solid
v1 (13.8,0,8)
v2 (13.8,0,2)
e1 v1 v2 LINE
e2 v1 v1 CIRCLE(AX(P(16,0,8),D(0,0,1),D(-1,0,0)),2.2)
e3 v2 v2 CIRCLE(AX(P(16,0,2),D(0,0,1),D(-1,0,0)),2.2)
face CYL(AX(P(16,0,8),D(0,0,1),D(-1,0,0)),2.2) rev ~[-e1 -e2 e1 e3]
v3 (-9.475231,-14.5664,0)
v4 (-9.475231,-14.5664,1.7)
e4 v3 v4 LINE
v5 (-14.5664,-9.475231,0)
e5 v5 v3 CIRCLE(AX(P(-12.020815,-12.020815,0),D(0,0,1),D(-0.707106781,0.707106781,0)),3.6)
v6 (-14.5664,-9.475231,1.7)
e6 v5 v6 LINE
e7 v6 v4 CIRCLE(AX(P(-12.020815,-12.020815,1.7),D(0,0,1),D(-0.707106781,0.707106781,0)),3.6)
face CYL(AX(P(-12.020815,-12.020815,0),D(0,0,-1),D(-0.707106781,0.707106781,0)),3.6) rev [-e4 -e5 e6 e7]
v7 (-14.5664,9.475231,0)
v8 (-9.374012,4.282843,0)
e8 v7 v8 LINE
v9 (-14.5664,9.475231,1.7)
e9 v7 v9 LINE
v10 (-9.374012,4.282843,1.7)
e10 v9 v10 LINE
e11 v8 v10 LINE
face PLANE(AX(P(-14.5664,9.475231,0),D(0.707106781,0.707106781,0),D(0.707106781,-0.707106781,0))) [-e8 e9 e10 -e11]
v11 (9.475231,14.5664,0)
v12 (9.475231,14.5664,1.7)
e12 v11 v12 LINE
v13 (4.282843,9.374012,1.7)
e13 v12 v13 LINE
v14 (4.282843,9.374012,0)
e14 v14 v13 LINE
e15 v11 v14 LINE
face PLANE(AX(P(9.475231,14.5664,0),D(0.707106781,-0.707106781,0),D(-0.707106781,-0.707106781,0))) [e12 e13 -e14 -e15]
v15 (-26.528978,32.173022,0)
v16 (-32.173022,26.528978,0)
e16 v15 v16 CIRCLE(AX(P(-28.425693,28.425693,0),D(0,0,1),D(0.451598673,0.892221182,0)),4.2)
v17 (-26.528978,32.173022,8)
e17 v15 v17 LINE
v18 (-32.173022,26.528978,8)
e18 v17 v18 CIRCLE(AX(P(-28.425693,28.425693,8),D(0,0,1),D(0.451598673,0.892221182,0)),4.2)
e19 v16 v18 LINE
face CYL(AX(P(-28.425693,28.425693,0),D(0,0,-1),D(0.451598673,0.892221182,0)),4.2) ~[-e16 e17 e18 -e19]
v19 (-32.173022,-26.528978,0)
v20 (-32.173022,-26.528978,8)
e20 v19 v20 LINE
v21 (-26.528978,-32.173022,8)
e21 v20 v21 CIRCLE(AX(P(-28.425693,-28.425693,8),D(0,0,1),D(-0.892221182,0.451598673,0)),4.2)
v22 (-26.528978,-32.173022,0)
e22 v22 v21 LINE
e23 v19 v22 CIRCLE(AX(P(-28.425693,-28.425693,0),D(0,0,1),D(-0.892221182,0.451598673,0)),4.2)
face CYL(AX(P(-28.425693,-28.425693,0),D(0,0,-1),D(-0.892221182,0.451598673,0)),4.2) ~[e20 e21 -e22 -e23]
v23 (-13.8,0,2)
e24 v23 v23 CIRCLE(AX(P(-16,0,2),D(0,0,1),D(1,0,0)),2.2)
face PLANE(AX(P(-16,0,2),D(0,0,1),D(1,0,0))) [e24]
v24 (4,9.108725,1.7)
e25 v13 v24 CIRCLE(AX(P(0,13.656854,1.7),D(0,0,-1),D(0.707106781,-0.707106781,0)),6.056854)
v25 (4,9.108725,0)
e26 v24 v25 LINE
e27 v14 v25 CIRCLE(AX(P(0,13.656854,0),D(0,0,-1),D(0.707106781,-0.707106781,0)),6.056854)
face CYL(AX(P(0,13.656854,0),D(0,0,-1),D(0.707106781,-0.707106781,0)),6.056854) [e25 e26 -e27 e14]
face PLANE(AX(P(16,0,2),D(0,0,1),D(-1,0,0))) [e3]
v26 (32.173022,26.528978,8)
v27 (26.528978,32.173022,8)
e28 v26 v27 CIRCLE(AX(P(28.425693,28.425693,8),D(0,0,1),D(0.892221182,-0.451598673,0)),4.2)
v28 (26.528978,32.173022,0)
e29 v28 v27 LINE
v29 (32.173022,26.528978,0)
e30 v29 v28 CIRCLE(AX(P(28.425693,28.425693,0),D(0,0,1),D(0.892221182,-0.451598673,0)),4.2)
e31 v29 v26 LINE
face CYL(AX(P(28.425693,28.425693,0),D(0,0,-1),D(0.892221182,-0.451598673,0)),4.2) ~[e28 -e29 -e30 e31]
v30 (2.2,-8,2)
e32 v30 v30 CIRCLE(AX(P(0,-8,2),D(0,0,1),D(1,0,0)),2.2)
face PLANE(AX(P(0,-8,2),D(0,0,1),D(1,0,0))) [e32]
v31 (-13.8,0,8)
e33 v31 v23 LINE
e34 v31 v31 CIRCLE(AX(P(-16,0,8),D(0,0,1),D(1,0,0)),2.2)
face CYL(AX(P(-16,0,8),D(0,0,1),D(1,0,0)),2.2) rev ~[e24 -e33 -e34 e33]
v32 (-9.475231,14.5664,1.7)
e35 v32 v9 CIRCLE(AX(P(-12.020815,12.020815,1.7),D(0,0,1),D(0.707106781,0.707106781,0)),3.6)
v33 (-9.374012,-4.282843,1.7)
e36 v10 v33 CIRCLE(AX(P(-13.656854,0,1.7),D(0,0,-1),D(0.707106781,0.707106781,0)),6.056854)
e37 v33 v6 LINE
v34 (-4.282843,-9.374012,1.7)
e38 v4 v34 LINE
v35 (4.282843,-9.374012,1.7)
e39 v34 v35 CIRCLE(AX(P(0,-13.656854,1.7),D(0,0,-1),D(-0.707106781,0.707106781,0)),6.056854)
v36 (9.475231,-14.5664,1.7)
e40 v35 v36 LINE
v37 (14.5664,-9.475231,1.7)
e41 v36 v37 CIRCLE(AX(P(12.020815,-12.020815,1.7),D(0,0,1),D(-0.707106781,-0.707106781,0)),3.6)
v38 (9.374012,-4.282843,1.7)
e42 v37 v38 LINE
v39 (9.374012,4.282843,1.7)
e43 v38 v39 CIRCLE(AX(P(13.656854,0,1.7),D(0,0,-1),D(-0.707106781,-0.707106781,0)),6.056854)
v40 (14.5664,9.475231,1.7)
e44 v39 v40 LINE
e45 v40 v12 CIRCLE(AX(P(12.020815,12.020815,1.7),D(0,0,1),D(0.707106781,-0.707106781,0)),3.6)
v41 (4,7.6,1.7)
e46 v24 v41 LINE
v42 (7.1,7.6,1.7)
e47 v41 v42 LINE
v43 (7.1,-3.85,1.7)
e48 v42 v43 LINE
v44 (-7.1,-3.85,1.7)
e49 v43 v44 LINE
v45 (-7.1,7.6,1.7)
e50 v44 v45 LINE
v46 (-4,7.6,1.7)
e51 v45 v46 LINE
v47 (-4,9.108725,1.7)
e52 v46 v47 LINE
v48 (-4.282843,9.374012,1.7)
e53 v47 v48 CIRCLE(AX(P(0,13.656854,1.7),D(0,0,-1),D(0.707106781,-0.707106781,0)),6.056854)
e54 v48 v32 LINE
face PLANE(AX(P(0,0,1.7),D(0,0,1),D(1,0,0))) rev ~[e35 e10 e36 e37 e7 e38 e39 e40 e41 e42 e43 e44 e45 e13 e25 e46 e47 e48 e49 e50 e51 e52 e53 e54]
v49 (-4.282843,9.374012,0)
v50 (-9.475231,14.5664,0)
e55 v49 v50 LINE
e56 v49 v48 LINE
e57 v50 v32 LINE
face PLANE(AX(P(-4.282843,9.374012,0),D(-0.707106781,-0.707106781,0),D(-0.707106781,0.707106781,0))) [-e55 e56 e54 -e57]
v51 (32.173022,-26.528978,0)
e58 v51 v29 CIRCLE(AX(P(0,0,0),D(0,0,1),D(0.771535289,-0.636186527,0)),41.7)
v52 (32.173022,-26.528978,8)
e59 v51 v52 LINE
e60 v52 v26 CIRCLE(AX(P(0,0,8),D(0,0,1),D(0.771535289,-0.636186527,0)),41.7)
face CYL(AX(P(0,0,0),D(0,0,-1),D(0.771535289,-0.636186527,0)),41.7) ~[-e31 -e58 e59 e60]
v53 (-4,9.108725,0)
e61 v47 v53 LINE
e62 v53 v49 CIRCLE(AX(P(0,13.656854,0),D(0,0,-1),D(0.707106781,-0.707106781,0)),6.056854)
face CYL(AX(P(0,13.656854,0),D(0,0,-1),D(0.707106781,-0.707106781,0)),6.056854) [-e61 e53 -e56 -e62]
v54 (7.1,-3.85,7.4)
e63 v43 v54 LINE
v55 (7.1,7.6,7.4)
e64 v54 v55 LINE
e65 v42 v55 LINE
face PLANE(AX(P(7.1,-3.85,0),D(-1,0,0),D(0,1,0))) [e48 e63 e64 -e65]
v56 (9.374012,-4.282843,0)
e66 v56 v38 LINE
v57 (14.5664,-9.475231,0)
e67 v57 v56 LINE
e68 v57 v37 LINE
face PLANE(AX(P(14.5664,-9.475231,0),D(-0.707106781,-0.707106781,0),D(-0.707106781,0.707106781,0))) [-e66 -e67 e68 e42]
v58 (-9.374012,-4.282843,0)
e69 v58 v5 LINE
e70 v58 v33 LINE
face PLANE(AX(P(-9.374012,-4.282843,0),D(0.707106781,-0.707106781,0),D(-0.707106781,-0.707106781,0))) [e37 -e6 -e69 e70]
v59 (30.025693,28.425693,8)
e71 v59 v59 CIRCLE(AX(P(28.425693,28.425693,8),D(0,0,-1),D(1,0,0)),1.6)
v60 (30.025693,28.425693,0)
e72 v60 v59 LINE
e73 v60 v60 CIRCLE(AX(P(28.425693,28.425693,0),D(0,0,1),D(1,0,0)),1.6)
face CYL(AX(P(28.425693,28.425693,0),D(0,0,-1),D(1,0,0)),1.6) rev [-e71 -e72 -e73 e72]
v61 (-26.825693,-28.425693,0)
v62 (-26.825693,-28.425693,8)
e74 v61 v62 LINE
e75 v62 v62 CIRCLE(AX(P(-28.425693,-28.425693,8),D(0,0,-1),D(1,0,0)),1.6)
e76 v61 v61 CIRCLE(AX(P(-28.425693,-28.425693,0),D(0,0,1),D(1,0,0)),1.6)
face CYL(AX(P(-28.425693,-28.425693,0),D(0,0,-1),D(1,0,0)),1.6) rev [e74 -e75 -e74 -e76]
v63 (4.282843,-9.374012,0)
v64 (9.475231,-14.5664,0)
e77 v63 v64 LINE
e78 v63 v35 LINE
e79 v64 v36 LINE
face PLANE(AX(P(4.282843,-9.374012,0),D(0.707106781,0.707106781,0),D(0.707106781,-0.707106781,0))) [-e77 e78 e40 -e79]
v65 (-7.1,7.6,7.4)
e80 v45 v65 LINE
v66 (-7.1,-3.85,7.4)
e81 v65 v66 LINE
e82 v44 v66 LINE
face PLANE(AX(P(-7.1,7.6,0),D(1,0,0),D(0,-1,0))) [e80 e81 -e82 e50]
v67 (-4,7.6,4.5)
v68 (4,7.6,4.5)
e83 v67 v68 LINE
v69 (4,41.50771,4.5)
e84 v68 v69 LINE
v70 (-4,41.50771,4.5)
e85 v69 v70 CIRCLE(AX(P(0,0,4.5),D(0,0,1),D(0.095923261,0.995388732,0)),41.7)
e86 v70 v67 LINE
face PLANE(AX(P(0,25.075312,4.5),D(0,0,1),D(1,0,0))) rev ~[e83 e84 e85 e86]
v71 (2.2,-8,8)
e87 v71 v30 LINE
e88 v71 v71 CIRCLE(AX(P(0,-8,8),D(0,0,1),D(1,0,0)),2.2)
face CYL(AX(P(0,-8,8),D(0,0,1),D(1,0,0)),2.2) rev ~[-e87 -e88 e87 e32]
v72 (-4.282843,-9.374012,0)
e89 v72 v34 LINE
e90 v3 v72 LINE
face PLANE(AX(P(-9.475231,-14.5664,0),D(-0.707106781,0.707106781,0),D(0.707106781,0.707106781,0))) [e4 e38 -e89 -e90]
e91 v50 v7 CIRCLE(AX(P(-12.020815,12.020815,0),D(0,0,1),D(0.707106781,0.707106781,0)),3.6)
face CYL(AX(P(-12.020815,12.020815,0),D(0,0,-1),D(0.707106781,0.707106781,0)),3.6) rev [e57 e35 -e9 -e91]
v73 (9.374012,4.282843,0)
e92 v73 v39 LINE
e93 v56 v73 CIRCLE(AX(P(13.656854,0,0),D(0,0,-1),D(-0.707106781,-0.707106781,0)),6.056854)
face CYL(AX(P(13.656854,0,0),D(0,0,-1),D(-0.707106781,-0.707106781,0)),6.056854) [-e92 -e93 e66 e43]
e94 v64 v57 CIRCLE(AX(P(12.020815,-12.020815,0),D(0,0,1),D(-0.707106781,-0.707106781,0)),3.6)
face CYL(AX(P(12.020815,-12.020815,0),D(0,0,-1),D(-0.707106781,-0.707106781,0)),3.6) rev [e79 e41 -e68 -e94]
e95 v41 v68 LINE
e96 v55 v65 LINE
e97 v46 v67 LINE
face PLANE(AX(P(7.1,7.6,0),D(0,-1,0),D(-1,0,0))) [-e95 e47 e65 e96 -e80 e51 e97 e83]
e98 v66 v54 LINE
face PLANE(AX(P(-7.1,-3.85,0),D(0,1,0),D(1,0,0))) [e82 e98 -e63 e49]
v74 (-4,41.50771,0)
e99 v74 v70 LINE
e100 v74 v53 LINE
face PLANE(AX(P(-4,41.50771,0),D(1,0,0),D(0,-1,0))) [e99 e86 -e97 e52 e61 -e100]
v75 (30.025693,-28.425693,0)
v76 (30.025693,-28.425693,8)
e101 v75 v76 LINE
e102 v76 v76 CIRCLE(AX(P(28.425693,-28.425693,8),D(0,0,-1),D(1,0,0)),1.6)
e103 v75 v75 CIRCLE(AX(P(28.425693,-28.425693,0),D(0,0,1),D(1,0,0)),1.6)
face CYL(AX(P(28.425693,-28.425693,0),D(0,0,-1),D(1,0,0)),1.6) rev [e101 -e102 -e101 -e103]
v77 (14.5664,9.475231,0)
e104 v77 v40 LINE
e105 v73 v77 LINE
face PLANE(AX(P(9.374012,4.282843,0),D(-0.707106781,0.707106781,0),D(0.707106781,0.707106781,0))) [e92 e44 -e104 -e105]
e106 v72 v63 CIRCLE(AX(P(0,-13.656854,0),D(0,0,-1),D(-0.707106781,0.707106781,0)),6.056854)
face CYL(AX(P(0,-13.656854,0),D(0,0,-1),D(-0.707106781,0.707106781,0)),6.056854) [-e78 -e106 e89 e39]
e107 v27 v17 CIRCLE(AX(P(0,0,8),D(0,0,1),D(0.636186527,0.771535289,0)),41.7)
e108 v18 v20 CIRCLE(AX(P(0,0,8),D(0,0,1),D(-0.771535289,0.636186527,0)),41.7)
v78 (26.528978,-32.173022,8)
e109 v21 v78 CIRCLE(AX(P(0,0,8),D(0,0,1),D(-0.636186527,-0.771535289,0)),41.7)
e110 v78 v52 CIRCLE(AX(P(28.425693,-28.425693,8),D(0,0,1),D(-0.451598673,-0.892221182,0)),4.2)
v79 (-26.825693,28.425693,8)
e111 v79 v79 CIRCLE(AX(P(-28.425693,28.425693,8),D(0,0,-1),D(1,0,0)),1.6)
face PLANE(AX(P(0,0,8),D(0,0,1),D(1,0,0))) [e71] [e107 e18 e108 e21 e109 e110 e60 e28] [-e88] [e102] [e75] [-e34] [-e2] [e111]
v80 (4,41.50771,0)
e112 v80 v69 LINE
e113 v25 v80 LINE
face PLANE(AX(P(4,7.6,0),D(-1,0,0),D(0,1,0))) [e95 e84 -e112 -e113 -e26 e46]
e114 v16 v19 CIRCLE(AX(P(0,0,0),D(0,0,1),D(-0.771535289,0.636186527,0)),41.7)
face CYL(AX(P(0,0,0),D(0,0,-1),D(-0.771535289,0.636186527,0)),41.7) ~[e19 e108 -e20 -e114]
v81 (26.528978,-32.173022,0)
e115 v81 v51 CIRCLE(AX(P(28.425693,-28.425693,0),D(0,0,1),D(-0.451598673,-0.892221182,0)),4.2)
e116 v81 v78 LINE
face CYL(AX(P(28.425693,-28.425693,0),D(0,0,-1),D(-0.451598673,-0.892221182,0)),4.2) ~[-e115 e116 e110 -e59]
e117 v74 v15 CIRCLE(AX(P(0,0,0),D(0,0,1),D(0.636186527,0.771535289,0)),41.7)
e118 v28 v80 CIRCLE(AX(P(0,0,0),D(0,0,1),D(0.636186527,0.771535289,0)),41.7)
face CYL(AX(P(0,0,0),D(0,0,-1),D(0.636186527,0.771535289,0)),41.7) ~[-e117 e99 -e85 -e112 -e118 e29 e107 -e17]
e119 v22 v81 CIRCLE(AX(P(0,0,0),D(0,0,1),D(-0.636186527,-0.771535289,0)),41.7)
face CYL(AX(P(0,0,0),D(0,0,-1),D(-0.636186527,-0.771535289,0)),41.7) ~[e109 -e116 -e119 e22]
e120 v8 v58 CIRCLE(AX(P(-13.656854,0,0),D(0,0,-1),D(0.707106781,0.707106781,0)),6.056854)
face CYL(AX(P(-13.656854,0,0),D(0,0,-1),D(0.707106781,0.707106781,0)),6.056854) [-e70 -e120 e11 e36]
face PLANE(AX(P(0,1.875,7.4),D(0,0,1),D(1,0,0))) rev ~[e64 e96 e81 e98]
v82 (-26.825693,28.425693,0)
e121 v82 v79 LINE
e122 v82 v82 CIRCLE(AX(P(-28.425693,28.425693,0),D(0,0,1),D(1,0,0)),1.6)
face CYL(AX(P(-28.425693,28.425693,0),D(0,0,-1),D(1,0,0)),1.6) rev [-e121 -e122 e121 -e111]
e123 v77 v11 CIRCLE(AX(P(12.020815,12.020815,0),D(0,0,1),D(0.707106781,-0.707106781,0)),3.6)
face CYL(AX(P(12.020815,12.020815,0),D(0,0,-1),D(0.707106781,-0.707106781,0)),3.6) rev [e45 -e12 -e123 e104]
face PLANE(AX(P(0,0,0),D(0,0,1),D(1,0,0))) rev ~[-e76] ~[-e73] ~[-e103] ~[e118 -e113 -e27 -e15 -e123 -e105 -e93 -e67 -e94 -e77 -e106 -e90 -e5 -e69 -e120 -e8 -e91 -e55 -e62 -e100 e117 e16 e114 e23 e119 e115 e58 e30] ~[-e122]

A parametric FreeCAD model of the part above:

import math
import FreeCAD as App
import Part
import Sketcher

doc = App.newDocument("Part")
body = doc.addObject("PartDesign::Body", "Body")

# Sketch on XY plane
sketch1 = body.newObject("Sketcher::SketchObject", "Sketch")
sketch1.AttachmentSupport = (doc.getObject("XY_Plane"), [""])
sketch1.MapMode = "FlatFace"
sketch1.addGeometry([
    Part.ArcOfCircle(Part.Circle(App.Vector(0, 0, 0), App.Vector(0, 0, 1), 41.7), math.radians(140), math.radians(220)),  # 0
    Part.ArcOfCircle(Part.Circle(App.Vector(-28.4, -28.4, 0), App.Vector(0, 0, 1), 4.2), math.radians(153), math.radians(297)),  # 1
    Part.ArcOfCircle(Part.Circle(App.Vector(0, 0, 0), App.Vector(0, 0, 1), 41.7), math.radians(-130), math.radians(-50)),  # 2
    Part.ArcOfCircle(Part.Circle(App.Vector(28.4, -28.4, 0), App.Vector(0, 0, 1), 4.2), math.radians(-117), math.radians(27)),  # 3
    Part.ArcOfCircle(Part.Circle(App.Vector(0, 0, 0), App.Vector(0, 0, 1), 41.7), math.radians(-40), math.radians(40)),  # 4
    Part.ArcOfCircle(Part.Circle(App.Vector(28.4, 28.4, 0), App.Vector(0, 0, 1), 4.2), math.radians(-27), math.radians(117)),  # 5
    Part.ArcOfCircle(Part.Circle(App.Vector(0, 0, 0), App.Vector(0, 0, 1), 41.7), math.radians(50), math.radians(130)),  # 6
    Part.ArcOfCircle(Part.Circle(App.Vector(-28.4, 28.4, 0), App.Vector(0, 0, 1), 4.2), math.radians(63), math.radians(207)),  # 7
], False)
sketch1.addConstraint([
    Sketcher.Constraint("Coincident", 0, 2, 1, 1),
    Sketcher.Constraint("Coincident", 1, 2, 2, 1),
    Sketcher.Constraint("Coincident", 2, 2, 3, 1),
    Sketcher.Constraint("Coincident", 3, 2, 4, 1),
    Sketcher.Constraint("Coincident", 4, 2, 5, 1),
    Sketcher.Constraint("Coincident", 5, 2, 6, 1),
    Sketcher.Constraint("Coincident", 6, 2, 7, 1),
    Sketcher.Constraint("Coincident", 7, 2, 0, 1),
    Sketcher.Constraint("Coincident", 0, 3, -1, 1),
    Sketcher.Constraint("Coincident", 2, 3, -1, 1),
    Sketcher.Constraint("Coincident", 4, 3, -1, 1),
    Sketcher.Constraint("Coincident", 6, 3, -1, 1),
    Sketcher.Constraint("Equal", 0, 2),
    Sketcher.Constraint("Equal", 1, 3),
    Sketcher.Constraint("Equal", 2, 4),
    Sketcher.Constraint("Equal", 3, 5),
    Sketcher.Constraint("Equal", 4, 6),
    Sketcher.Constraint("Equal", 5, 7),
    Sketcher.Constraint("Symmetric", 1, 3, 5, 3, -1, 1),
    Sketcher.Constraint("Symmetric", 3, 3, 7, 3, -1, 1),
    Sketcher.Constraint("Symmetric", 1, 3, 3, 3, -2),
    Sketcher.Constraint("Radius", 0, 41.7),
    Sketcher.Constraint("Radius", 1, 4.2),
    Sketcher.Constraint("DistanceX", 0, 2, -1, 1, 32.173022),
    Sketcher.Constraint("DistanceX", 1, 2, -1, 1, 26.528978),
])
pad1 = body.newObject("PartDesign::Pad", "Pad")
pad1.Profile = sketch1
pad1.Length = 8

# Sketch on XY plane
sketch2 = body.newObject("Sketcher::SketchObject", "Sketch001")
sketch2.AttachmentSupport = (doc.getObject("XY_Plane"), [""])
sketch2.MapMode = "FlatFace"
sketch2.addGeometry([
    Part.LineSegment(App.Vector(-4.3, 9.4, 0), App.Vector(-9.5, 14.6, 0)),  # 0
    Part.ArcOfCircle(Part.Circle(App.Vector(-12, 12, 0), App.Vector(0, 0, 1), 3.6), math.radians(45), math.radians(225)),  # 1
    Part.LineSegment(App.Vector(-14.6, 9.5, 0), App.Vector(-9.4, 4.3, 0)),  # 2
    Part.ArcOfCircle(Part.Circle(App.Vector(-13.7, 0, 0), App.Vector(0, 0, 1), 6.1), math.radians(-45), math.radians(45)),  # 3
    Part.LineSegment(App.Vector(-9.4, -4.3, 0), App.Vector(-14.6, -9.5, 0)),  # 4
    Part.ArcOfCircle(Part.Circle(App.Vector(-12, -12, 0), App.Vector(0, 0, 1), 3.6), math.radians(135), math.radians(315)),  # 5
    Part.LineSegment(App.Vector(-9.5, -14.6, 0), App.Vector(-4.3, -9.4, 0)),  # 6
    Part.ArcOfCircle(Part.Circle(App.Vector(0, -13.7, 0), App.Vector(0, 0, 1), 6.1), math.radians(45), math.radians(135)),  # 7
    Part.LineSegment(App.Vector(4.3, -9.4, 0), App.Vector(9.5, -14.6, 0)),  # 8
    Part.ArcOfCircle(Part.Circle(App.Vector(12, -12, 0), App.Vector(0, 0, 1), 3.6), math.radians(-135), math.radians(45)),  # 9
    Part.LineSegment(App.Vector(14.6, -9.5, 0), App.Vector(9.4, -4.3, 0)),  # 10
    Part.ArcOfCircle(Part.Circle(App.Vector(13.7, 0, 0), App.Vector(0, 0, 1), 6.1), math.radians(135), math.radians(225)),  # 11
    Part.LineSegment(App.Vector(9.4, 4.3, 0), App.Vector(14.6, 9.5, 0)),  # 12
    Part.ArcOfCircle(Part.Circle(App.Vector(12, 12, 0), App.Vector(0, 0, 1), 3.6), math.radians(-45), math.radians(135)),  # 13
    Part.LineSegment(App.Vector(9.5, 14.6, 0), App.Vector(4.3, 9.4, 0)),  # 14
    Part.ArcOfCircle(Part.Circle(App.Vector(0, 13.7, 0), App.Vector(0, 0, 1), 6.1), math.radians(-135), math.radians(-45)),  # 15
], False)
sketch2.addConstraint([
    Sketcher.Constraint("Tangent", 0, 2, 1, 1),
    Sketcher.Constraint("Tangent", 1, 2, 2, 1),
    Sketcher.Constraint("Tangent", 2, 2, 3, 2),
    Sketcher.Constraint("Tangent", 3, 1, 4, 1),
    Sketcher.Constraint("Tangent", 4, 2, 5, 1),
    Sketcher.Constraint("Tangent", 5, 2, 6, 1),
    Sketcher.Constraint("Tangent", 6, 2, 7, 2),
    Sketcher.Constraint("Tangent", 7, 1, 8, 1),
    Sketcher.Constraint("Tangent", 8, 2, 9, 1),
    Sketcher.Constraint("Tangent", 9, 2, 10, 1),
    Sketcher.Constraint("Tangent", 10, 2, 11, 2),
    Sketcher.Constraint("Tangent", 11, 1, 12, 1),
    Sketcher.Constraint("Tangent", 12, 2, 13, 1),
    Sketcher.Constraint("Tangent", 13, 2, 14, 1),
    Sketcher.Constraint("Tangent", 14, 2, 15, 2),
    Sketcher.Constraint("Tangent", 15, 1, 0, 1),
    Sketcher.Constraint("Equal", 1, 5),
    Sketcher.Constraint("Equal", 3, 7),
    Sketcher.Constraint("Equal", 5, 9),
    Sketcher.Constraint("Equal", 7, 11),
    Sketcher.Constraint("Equal", 9, 13),
    Sketcher.Constraint("Equal", 11, 15),
    Sketcher.Constraint("Symmetric", 1, 3, 9, 3, -1, 1),
    Sketcher.Constraint("Symmetric", 3, 3, 11, 3, -1, 1),
    Sketcher.Constraint("Symmetric", 5, 3, 13, 3, -1, 1),
    Sketcher.Constraint("Symmetric", 7, 3, 15, 3, -1, 1),
    Sketcher.Constraint("Symmetric", 5, 3, 9, 3, -2),
    Sketcher.Constraint("PointOnObject", 3, 3, -1),
    Sketcher.Constraint("PointOnObject", 7, 3, -2),
    Sketcher.Constraint("Parallel", 0, 2),
    Sketcher.Constraint("Perpendicular", 2, 4),
    Sketcher.Constraint("Equal", 0, 2),
    Sketcher.Constraint("Radius", 1, 3.6),
    Sketcher.Constraint("Radius", 3, 6.056854),
    Sketcher.Constraint("DistanceY", -1, 1, 0, 2, 14.5664),
])
pocket1 = body.newObject("PartDesign::Pocket", "Pocket")
pocket1.Profile = sketch2
pocket1.Length = 1.7
pocket1.Reversed = True

# Sketch on XY plane
sketch3 = body.newObject("Sketcher::SketchObject", "Sketch002")
sketch3.AttachmentSupport = (doc.getObject("XY_Plane"), [""])
sketch3.MapMode = "FlatFace"
sketch3.addGeometry([
    Part.LineSegment(App.Vector(-7, -4, 0), App.Vector(7, -4, 0)),
    Part.LineSegment(App.Vector(7, -4, 0), App.Vector(7, 8, 0)),
    Part.LineSegment(App.Vector(7, 8, 0), App.Vector(-7, 8, 0)),
    Part.LineSegment(App.Vector(-7, 8, 0), App.Vector(-7, -4, 0)),
], False)
sketch3.addConstraint([
    Sketcher.Constraint("Coincident", 0, 2, 1, 1),
    Sketcher.Constraint("Coincident", 1, 2, 2, 1),
    Sketcher.Constraint("Coincident", 2, 2, 3, 1),
    Sketcher.Constraint("Coincident", 3, 2, 0, 1),
    Sketcher.Constraint("Horizontal", 0),
    Sketcher.Constraint("Vertical", 1),
    Sketcher.Constraint("Horizontal", 2),
    Sketcher.Constraint("Vertical", 3),
    Sketcher.Constraint("DistanceX", 0, 1, 0, 2, 14.2),
    Sketcher.Constraint("DistanceY", 1, 1, 1, 2, 11.45),
    Sketcher.Constraint("DistanceX", -1, 1, 0, 2, 7.1),
    Sketcher.Constraint("DistanceY", -1, 1, 1, 2, 7.6),
])
pocket2 = body.newObject("PartDesign::Pocket", "Pocket001")
pocket2.Profile = sketch3
pocket2.Length = 7.4
pocket2.Reversed = True

# Sketch on XY plane
sketch4 = body.newObject("Sketcher::SketchObject", "Sketch003")
sketch4.AttachmentSupport = (doc.getObject("XY_Plane"), [""])
sketch4.MapMode = "FlatFace"
sketch4.addGeometry([
    Part.LineSegment(App.Vector(-4, 42, 0), App.Vector(-4, 8, 0)),
    Part.LineSegment(App.Vector(-4, 8, 0), App.Vector(4, 8, 0)),
    Part.LineSegment(App.Vector(4, 8, 0), App.Vector(4, 42, 0)),
    Part.ArcOfCircle(Part.Circle(App.Vector(0, 0, 0), App.Vector(0, 0, 1), 42), math.radians(84.5), math.radians(95.5)),
], False)
sketch4.addConstraint([
    Sketcher.Constraint("Coincident", 0, 2, 1, 1),
    Sketcher.Constraint("Coincident", 1, 2, 2, 1),
    Sketcher.Constraint("Coincident", 2, 2, 3, 1),
    Sketcher.Constraint("Coincident", 3, 2, 0, 1),
    Sketcher.Constraint("Vertical", 0),
    Sketcher.Constraint("Horizontal", 1),
    Sketcher.Constraint("Vertical", 2),
    Sketcher.Constraint("Coincident", 3, 3, -1, 1),
    Sketcher.Constraint("Horizontal", 2, 2, 3, 2),
    Sketcher.Constraint("Radius", 3, 41.7),
    Sketcher.Constraint("DistanceX", 1, 1, 1, 2, 8.0),
    Sketcher.Constraint("DistanceY", -1, 1, 0, 2, 7.6),
])
pocket3 = body.newObject("PartDesign::Pocket", "Pocket002")
pocket3.Profile = sketch4
pocket3.Length = 4.5
pocket3.Reversed = True

# Sketch on XY plane
sketch5 = body.newObject("Sketcher::SketchObject", "Sketch004")
sketch5.AttachmentSupport = (doc.getObject("XY_Plane"), [""])
sketch5.MapMode = "FlatFace"
sketch5.AttachmentOffset = App.Placement(App.Vector(0, 0, 8), App.Rotation())
sketch5.addGeometry([
    Part.Circle(App.Vector(-16, 0, 0), App.Vector(0, 0, 1), 2.2),
    Part.Circle(App.Vector(16, 0, 0), App.Vector(0, 0, 1), 2.2),
    Part.Circle(App.Vector(0, -8, 0), App.Vector(0, 0, 1), 2.2),
], False)
sketch5.addConstraint([
    Sketcher.Constraint("Equal", 0, 1),
    Sketcher.Constraint("Equal", 1, 2),
    Sketcher.Constraint("Symmetric", 0, 3, 1, 3, -1, 1),
    Sketcher.Constraint("PointOnObject", 0, 3, -1),
    Sketcher.Constraint("PointOnObject", 2, 3, -2),
    Sketcher.Constraint("Diameter", 0, 4.4),
    Sketcher.Constraint("DistanceX", 0, 3, -1, 1, 16.0),
    Sketcher.Constraint("DistanceY", 2, 3, -1, 1, 8.0),
])
pocket4 = body.newObject("PartDesign::Pocket", "Pocket003")
pocket4.Profile = sketch5
pocket4.Length = 6

# Sketch on XY plane
sketch6 = body.newObject("Sketcher::SketchObject", "Sketch005")
sketch6.AttachmentSupport = (doc.getObject("XY_Plane"), [""])
sketch6.MapMode = "FlatFace"
sketch6.addGeometry([
    Part.Circle(App.Vector(-28.4, 28.4, 0), App.Vector(0, 0, 1), 1.6),
    Part.Circle(App.Vector(28.4, 28.4, 0), App.Vector(0, 0, 1), 1.6),
    Part.Circle(App.Vector(28.4, -28.4, 0), App.Vector(0, 0, 1), 1.6),
    Part.Circle(App.Vector(-28.4, -28.4, 0), App.Vector(0, 0, 1), 1.6),
], False)
sketch6.addConstraint([
    Sketcher.Constraint("Equal", 0, 1),
    Sketcher.Constraint("Equal", 1, 2),
    Sketcher.Constraint("Equal", 2, 3),
    Sketcher.Constraint("Symmetric", 0, 3, 2, 3, -1, 1),
    Sketcher.Constraint("Symmetric", 1, 3, 3, 3, -1, 1),
    Sketcher.Constraint("Symmetric", 0, 3, 1, 3, -2),
    Sketcher.Constraint("Diameter", 0, 3.2),
    Sketcher.Constraint("DistanceX", 0, 3, -1, 1, 28.425693),
    Sketcher.Constraint("DistanceY", -1, 1, 0, 3, 28.425693),
])
pocket5 = body.newObject("PartDesign::Pocket", "Pocket004")
pocket5.Profile = sketch6
pocket5.Type = "ThroughAll"
pocket5.Reversed = True

doc.recompute()
